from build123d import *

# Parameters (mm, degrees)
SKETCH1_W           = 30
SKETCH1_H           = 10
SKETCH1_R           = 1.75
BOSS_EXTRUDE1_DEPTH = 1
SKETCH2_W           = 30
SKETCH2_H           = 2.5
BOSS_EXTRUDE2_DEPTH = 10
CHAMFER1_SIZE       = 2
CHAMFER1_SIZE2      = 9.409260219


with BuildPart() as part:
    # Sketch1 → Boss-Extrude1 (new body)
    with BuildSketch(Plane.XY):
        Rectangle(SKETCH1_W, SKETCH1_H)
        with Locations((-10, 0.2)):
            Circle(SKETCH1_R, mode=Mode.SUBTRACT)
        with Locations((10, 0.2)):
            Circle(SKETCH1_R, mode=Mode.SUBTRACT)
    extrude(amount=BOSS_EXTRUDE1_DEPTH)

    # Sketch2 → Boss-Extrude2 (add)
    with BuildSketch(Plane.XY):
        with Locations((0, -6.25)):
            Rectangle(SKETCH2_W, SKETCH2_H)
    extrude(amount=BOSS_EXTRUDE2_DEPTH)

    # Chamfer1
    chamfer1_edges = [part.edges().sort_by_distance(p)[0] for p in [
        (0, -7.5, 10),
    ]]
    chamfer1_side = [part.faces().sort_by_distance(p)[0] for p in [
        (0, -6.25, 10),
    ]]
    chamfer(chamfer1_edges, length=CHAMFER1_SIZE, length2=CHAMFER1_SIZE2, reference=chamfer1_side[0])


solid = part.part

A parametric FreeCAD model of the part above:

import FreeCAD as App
import Part
import Sketcher
Q = App.Units.Quantity


def edges_at(feature, points):
    """Names of the edges that pass closest to the given points."""
    edges = feature.Shape.Edges
    near = lambda p: min(range(len(edges)), key=lambda i: edges[i].distToShape(Part.Vertex(*p))[0])
    return sorted({f"Edge{near(p) + 1}" for p in points})


def add_polygon(sketch, points):
    """Adds a closed chain of lines whose ends are joined by coincident constraints."""
    first, n = sketch.GeometryCount, len(points)
    for a, b in zip(points, points[1:] + points[:1]):
        sketch.addGeometry(Part.LineSegment(App.Vector(*a, 0), App.Vector(*b, 0)), False)
    for i in range(n):
        sketch.addConstraint(Sketcher.Constraint("Coincident", first + i, 2, first + (i + 1) % n, 1))

doc = App.newDocument("Part")
body = doc.addObject("PartDesign::Body", "Body")

# Sketch on XY plane
sketch1 = body.newObject("Sketcher::SketchObject", "Sketch")
sketch1.AttachmentSupport = (doc.getObject("XY_Plane"), [""])
sketch1.MapMode = "FlatFace"
add_polygon(sketch1, [(-15, 5), (-15, -5), (15, -5), (15, 5)])  # lines 0-3
sketch1.addGeometry(Part.Circle(App.Vector(-10, 0.2, 0), App.Vector(0, 0, 1), 1.8), False)  # 4
sketch1.addGeometry(Part.Circle(App.Vector(10, 0.2, 0), App.Vector(0, 0, 1), 1.8), False)  # 5
sketch1.addConstraint([
    Sketcher.Constraint("Vertical", 0),
    Sketcher.Constraint("Horizontal", 1),
    Sketcher.Constraint("Vertical", 2),
    Sketcher.Constraint("Horizontal", 3),
    Sketcher.Constraint("Equal", 4, 5),
    Sketcher.Constraint("Symmetric", 0, 2, 2, 2, -1, 1),
    Sketcher.Constraint("Symmetric", 4, 3, 5, 3, -2),
    Sketcher.Constraint("Diameter", 4, Q("3.5 mm")),
    Sketcher.Constraint("DistanceX", 1, 1, 1, 2, Q("30 mm")),
    Sketcher.Constraint("DistanceY", 0, 2, 0, 1, Q("10 mm")),
    Sketcher.Constraint("DistanceX", 4, 3, -1, 1, Q("10 mm")),
    Sketcher.Constraint("DistanceY", -1, 1, 4, 3, Q("0.2 mm")),
])
pad1 = body.newObject("PartDesign::Pad", "Pad")
pad1.Profile = sketch1
pad1.Length = 1

# Sketch on XY plane
sketch2 = body.newObject("Sketcher::SketchObject", "Sketch001")
sketch2.AttachmentSupport = (doc.getObject("XY_Plane"), [""])
sketch2.MapMode = "FlatFace"
add_polygon(sketch2, [(-15, -5), (-15, -7.5), (15, -7.5), (15, -5)])  # lines 0-3
sketch2.addConstraint([
    Sketcher.Constraint("Vertical", 0),
    Sketcher.Constraint("Horizontal", 1),
    Sketcher.Constraint("Vertical", 2),
    Sketcher.Constraint("Horizontal", 3),
    Sketcher.Constraint("DistanceX", 1, 1, 1, 2, Q("30 mm")),
    Sketcher.Constraint("DistanceY", 0, 2, 0, 1, Q("2.5 mm")),
    Sketcher.Constraint("DistanceX", 0, 2, -1, 1, Q("15 mm")),
    Sketcher.Constraint("DistanceY", 2, 2, -1, 1, Q("5 mm")),
])
pad2 = body.newObject("PartDesign::Pad", "Pad001")
pad2.Profile = sketch2
pad2.Length = 10
doc.recompute()

chamfer = body.newObject("PartDesign::Chamfer", "Chamfer")
chamfer.Base = (pad2, edges_at(pad2, [(0, -7.5, 10)]))
chamfer.ChamferType = "Two distances"
chamfer.Size = 2
chamfer.Size2 = 9.40926
chamfer.FlipDirection = True

doc.recompute()
